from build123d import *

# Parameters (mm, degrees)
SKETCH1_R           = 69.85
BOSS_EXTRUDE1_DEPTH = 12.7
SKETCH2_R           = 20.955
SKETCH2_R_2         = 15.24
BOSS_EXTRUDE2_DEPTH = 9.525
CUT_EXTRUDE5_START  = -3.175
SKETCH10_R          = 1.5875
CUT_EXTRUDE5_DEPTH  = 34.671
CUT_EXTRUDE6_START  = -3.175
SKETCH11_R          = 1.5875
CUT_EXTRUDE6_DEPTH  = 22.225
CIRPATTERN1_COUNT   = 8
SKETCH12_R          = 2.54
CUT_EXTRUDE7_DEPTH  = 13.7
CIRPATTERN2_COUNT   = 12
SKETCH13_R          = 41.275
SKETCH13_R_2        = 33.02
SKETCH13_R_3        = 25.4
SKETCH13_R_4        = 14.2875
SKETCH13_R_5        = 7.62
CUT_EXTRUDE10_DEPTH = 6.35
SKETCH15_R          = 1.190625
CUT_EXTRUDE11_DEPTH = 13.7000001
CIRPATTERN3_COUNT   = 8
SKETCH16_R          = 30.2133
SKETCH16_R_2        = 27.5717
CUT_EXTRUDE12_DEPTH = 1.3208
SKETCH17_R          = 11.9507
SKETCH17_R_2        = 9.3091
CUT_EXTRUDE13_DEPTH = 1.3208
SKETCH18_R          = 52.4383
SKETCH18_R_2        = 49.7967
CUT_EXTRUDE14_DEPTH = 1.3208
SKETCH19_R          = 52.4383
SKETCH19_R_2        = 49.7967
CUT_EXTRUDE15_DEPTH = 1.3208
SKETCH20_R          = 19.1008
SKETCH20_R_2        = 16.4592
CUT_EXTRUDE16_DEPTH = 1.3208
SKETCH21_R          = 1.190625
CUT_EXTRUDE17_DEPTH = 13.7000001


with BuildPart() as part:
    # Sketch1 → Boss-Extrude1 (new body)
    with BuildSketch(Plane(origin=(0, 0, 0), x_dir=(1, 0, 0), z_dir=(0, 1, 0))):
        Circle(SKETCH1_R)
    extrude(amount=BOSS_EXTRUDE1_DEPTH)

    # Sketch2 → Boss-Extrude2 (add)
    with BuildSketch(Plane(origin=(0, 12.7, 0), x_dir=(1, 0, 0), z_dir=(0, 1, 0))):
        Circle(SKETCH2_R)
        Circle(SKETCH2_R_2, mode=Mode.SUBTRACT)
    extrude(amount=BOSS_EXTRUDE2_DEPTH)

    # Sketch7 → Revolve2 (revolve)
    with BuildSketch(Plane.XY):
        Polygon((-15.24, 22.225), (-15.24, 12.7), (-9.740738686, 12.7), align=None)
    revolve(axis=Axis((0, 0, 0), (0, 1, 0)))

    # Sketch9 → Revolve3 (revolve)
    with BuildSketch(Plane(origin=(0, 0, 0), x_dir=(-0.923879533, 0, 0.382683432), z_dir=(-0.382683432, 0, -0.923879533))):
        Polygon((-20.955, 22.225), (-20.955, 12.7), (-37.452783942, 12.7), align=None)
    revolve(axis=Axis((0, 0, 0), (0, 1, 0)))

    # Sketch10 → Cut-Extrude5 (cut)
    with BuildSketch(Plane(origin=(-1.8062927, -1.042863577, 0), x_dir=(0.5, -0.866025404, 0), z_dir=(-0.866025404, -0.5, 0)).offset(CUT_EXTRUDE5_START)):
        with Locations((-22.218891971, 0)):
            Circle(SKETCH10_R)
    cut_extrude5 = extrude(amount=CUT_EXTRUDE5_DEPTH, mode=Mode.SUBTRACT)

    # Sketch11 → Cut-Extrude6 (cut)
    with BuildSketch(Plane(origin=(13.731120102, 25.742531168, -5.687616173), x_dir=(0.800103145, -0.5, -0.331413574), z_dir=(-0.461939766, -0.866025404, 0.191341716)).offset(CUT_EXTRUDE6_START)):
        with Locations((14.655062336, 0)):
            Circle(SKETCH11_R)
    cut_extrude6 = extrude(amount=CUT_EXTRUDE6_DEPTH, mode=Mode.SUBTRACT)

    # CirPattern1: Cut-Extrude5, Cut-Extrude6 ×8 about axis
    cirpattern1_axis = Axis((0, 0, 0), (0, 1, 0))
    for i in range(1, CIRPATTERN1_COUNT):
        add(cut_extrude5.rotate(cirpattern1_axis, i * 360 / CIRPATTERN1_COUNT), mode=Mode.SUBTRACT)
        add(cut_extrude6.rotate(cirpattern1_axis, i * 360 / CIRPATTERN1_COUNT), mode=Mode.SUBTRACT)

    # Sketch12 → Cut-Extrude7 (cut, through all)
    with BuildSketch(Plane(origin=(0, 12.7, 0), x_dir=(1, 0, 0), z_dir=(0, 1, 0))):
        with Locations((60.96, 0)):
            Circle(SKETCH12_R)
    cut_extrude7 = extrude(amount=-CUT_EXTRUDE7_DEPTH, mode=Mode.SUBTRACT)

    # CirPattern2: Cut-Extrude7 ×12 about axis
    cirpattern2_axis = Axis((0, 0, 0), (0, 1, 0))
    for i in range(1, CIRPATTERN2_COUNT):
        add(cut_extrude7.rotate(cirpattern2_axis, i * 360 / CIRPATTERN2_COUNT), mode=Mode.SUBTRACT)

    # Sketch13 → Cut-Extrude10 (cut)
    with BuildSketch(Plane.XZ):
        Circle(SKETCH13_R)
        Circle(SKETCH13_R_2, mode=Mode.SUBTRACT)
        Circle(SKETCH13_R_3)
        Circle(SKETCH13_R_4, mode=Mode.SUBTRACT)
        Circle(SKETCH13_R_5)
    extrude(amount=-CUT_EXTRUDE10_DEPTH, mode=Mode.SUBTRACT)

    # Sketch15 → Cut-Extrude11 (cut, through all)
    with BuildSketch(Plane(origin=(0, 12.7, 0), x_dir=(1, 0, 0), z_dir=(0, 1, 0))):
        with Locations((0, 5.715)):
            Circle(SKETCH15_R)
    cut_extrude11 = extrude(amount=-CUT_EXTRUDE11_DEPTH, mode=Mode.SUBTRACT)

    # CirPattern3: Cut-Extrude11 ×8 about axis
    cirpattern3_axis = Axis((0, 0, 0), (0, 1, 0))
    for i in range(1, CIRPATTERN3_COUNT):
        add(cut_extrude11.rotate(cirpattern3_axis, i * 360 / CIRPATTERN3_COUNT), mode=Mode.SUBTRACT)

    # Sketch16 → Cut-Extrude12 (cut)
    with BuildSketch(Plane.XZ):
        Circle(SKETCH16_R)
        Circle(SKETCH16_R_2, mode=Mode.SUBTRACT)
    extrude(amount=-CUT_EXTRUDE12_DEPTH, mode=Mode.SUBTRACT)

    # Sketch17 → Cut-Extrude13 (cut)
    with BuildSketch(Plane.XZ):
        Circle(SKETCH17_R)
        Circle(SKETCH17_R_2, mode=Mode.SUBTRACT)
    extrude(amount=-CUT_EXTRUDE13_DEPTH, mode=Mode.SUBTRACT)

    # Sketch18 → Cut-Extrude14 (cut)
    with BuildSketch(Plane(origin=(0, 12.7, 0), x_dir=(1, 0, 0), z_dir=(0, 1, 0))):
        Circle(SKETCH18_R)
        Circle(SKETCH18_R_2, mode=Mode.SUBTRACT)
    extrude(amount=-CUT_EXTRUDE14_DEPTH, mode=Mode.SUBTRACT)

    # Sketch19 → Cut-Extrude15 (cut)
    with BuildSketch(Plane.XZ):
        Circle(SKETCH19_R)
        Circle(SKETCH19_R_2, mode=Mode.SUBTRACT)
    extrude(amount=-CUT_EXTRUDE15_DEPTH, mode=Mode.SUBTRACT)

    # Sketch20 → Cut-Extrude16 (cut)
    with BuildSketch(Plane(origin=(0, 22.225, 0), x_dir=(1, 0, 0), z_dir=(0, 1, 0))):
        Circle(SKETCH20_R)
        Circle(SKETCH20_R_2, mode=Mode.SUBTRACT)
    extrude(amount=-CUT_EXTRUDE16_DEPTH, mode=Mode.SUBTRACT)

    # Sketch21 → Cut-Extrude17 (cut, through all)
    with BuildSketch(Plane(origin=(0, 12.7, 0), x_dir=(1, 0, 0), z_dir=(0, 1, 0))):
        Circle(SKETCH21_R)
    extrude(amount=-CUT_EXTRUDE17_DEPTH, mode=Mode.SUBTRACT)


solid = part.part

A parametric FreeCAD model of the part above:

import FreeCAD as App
import Part
import Sketcher

V = App.Vector
Q = App.Units.Quantity

doc = App.newDocument("Part")
params = doc.addObject("Spreadsheet::Sheet", "Params")
for row, (alias, value) in enumerate([
    ("sketch1_diameter", "5.5 in"),
    ("pad1_length", "0.5 in"),
    ("sketch2_diameter", "1.2 in"),
    ("sketch2_diameter2", "1.65 in"),
    ("pad2_length", "0.375 in"),
    ("sketch3_height", "0.375 in"),
    ("revolution_angle", "360 deg"),
    ("sketch4_length", "0.75 in"),
    ("revolution2_angle", "360 deg"),
    ("sketch5_diameter", "0.125 in"),
    ("pocket1_length", "1.365 in"),
    ("sketch6_diameter", "0.125 in"),
    ("pocket2_length", "0.875 in"),
    ("sketch7_diameter", "0.2 in"),
    ("sketch8_diameter", "2 in"),
    ("sketch8_diameter2", "2.6 in"),
    ("sketch8_diameter3", "0.6 in"),
    ("sketch8_diameter4", "3.25 in"),
    ("sketch8_diameter5", "1.125 in"),
    ("pocket4_length", "0.25 in"),
    ("sketch9_diameter", "0.09375 in"),
    ("sketch10_diameter", "2.379 in"),
    ("sketch10_diameter2", "2.171 in"),
    ("pocket6_length", "0.052 in"),
    ("sketch11_diameter", "0.941 in"),
    ("sketch11_diameter2", "0.733 in"),
    ("pocket7_length", "0.052 in"),
    ("sketch12_diameter", "4.129 in"),
    ("sketch12_diameter2", "3.921 in"),
    ("pocket8_length", "0.052 in"),
    ("sketch13_diameter", "4.129 in"),
    ("sketch13_diameter2", "3.921 in"),
    ("pocket9_length", "0.052 in"),
    ("sketch14_diameter", "1.504 in"),
    ("sketch14_diameter2", "1.296 in"),
    ("pocket10_length", "0.052 in"),
    ("sketch15_diameter", "0.09375 in"),
], start=1):
    params.set(f"A{row}", alias)
    params.set(f"B{row}", "=" + value)
    params.setAlias(f"B{row}", alias)

body = doc.addObject("PartDesign::Body", "Body")

# Sketch on XZ plane
sketch1 = body.newObject("Sketcher::SketchObject", "Sketch")
sketch1.AttachmentSupport = (doc.getObject("XZ_Plane"), [""])
sketch1.MapMode = "FlatFace"
sketch1.addGeometry(Part.Circle(V(0, 0, 0), V(0, 0, 1), 70), False)
sketch1.addConstraint([
    Sketcher.Constraint("Coincident", 0, 3, -1, 1),
    Sketcher.Constraint("Diameter", 0, Q("5.5 in")),
])
sketch1.setExpression("Constraints[1]", "Params.sketch1_diameter")
pad1 = body.newObject("PartDesign::Pad", "Pad")
pad1.Profile = sketch1
pad1.setExpression("Length", "Params.pad1_length")
pad1.Reversed = True

# Sketch on XZ plane
sketch2 = body.newObject("Sketcher::SketchObject", "Sketch001")
sketch2.AttachmentSupport = (doc.getObject("XZ_Plane"), [""])
sketch2.MapMode = "FlatFace"
sketch2.AttachmentOffset = App.Placement(V(0, 0, -0.5 * 25.4), App.Rotation())
sketch2.addGeometry([
    Part.Circle(V(0, 0, 0), V(0, 0, 1), 21),
    Part.Circle(V(0, 0, 0), V(0, 0, 1), 15),
], False)
sketch2.addConstraint([
    Sketcher.Constraint("Coincident", 0, 3, -1, 1),
    Sketcher.Constraint("Coincident", 1, 3, -1, 1),
    Sketcher.Constraint("Diameter", 1, Q("1.2 in")),
    Sketcher.Constraint("Diameter", 0, Q("1.65 in")),
])
sketch2.setExpression("Constraints[2]", "Params.sketch2_diameter")
sketch2.setExpression("Constraints[3]", "Params.sketch2_diameter2")
pad2 = body.newObject("PartDesign::Pad", "Pad001")
pad2.Profile = sketch2
pad2.setExpression("Length", "Params.pad2_length")
pad2.Reversed = True

# Sketch on XY plane
sketch3 = body.newObject("Sketcher::SketchObject", "Sketch002")
sketch3.AttachmentSupport = (doc.getObject("XY_Plane"), [""])
sketch3.MapMode = "FlatFace"
sketch3.addGeometry([
    Part.LineSegment(V(-15, 22, 0), V(-15, 13, 0)),
    Part.LineSegment(V(-15, 13, 0), V(-10, 13, 0)),
    Part.LineSegment(V(-10, 13, 0), V(-15, 22, 0)),
], False)
sketch3.addConstraint([
    Sketcher.Constraint("Coincident", 0, 2, 1, 1),
    Sketcher.Constraint("Coincident", 1, 2, 2, 1),
    Sketcher.Constraint("Coincident", 2, 2, 0, 1),
    Sketcher.Constraint("Vertical", 0),
    Sketcher.Constraint("Horizontal", 1),
    Sketcher.Constraint("Angle", 2, Q("120 deg")),
    Sketcher.Constraint("DistanceX", 0, 2, -1, 1, Q("0.6 in")),
    Sketcher.Constraint("DistanceY", -1, 1, 0, 2, Q("0.5 in")),
    Sketcher.Constraint("DistanceY", 0, 2, 0, 1, Q("0.375 in")),
])
sketch3.setExpression("Constraints[8]", "Params.sketch3_height")
revolution = body.newObject("PartDesign::Revolution", "Revolution")
revolution.Profile = sketch3
revolution.ReferenceAxis = (sketch3, ["V_Axis"])
revolution.setExpression("Angle", "Params.revolution_angle")

# Sketch on an angled plane
sketch4 = body.newObject("Sketcher::SketchObject", "Sketch003")
sketch4.Placement = App.Placement(V(0, 0, 0), App.Rotation(V(-0.923879533, 0, 0.382683432), V(0, 1.000000001, 0), V(-0.382683432, 0, -0.923879533), "ZXY"))
sketch4.addGeometry([
    Part.LineSegment(V(-21, 13, 0), V(-21, 22, 0)),
    Part.LineSegment(V(-21, 22, 0), V(-37, 13, 0)),
    Part.LineSegment(V(-37, 13, 0), V(-21, 13, 0)),
], False)
sketch4.addConstraint([
    Sketcher.Constraint("Coincident", 0, 2, 1, 1),
    Sketcher.Constraint("Coincident", 1, 2, 2, 1),
    Sketcher.Constraint("Coincident", 2, 2, 0, 1),
    Sketcher.Constraint("Vertical", 0),
    Sketcher.Constraint("Horizontal", 2),
    Sketcher.Constraint("Angle", 1, Q("-150 deg")),
    Sketcher.Constraint("DistanceY", -1, 1, 1, 2, Q("0.5 in")),
    Sketcher.Constraint("Distance", 1, Q("0.75 in")),
    Sketcher.Constraint("DistanceX", 0, 2, -1, 1, Q("0.825 in")),
])
sketch4.setExpression("Constraints[7]", "Params.sketch4_length")
revolution2 = body.newObject("PartDesign::Revolution", "Revolution001")
revolution2.Profile = sketch4
revolution2.ReferenceAxis = (sketch4, ["V_Axis"])
revolution2.setExpression("Angle", "Params.revolution2_angle")

# Sketch on an angled plane
sketch5 = body.newObject("Sketcher::SketchObject", "Sketch004")
sketch5.Placement = App.Placement(V(0.943338, 0.544636, 0), App.Rotation(V(0.5, -0.866025404, 0), V(0, 0, 1), V(-0.866025404, -0.5, 0), "ZXY"))
sketch5.addGeometry(Part.Circle(V(-22.2, 0, 0), V(0, 0, 1), 1.6), False)
sketch5.addConstraint([
    Sketcher.Constraint("PointOnObject", 0, 3, -1),
    Sketcher.Constraint("Diameter", 0, Q("0.125 in")),
    Sketcher.Constraint("DistanceX", 0, 3, -1, 1, Q("22.218892 mm")),
])
sketch5.setExpression("Constraints[1]", "Params.sketch5_diameter")
pocket1 = body.newObject("PartDesign::Pocket", "Pocket")
pocket1.Profile = sketch5
pocket1.setExpression("Length", "Params.pocket1_length")
pocket1.Reversed = True

# Sketch on an angled plane
sketch6 = body.newObject("Sketcher::SketchObject", "Sketch005")
sketch6.Placement = App.Placement(V(15.197779, 28.492162, -6.295126), App.Rotation(V(0.800103145, -0.5, -0.331413574), V(0.382683432, 0, 0.923879532), V(-0.461939766, -0.866025404, 0.191341716), "ZXY"))
sketch6.addGeometry(Part.Circle(V(14.7, 0, 0), V(0, 0, 1), 1.6), False)
sketch6.addConstraint([
    Sketcher.Constraint("PointOnObject", 0, 3, -1),
    Sketcher.Constraint("Diameter", 0, Q("0.125 in")),
    Sketcher.Constraint("DistanceX", -1, 1, 0, 3, Q("14.655062 mm")),
])
sketch6.setExpression("Constraints[1]", "Params.sketch6_diameter")
pocket2 = body.newObject("PartDesign::Pocket", "Pocket001")
pocket2.Profile = sketch6
pocket2.setExpression("Length", "Params.pocket2_length")
pocket2.Reversed = True
doc.recompute()

polarpattern = body.newObject("PartDesign::PolarPattern", "PolarPattern")
polarpattern.Originals = [pocket1, pocket2]
polarpattern.Axis = (doc.getObject("Y_Axis"), [""])
polarpattern.Angle = 360
polarpattern.Occurrences = 8
body.Tip = polarpattern

# Sketch on XZ plane
sketch7 = body.newObject("Sketcher::SketchObject", "Sketch006")
sketch7.AttachmentSupport = (doc.getObject("XZ_Plane"), [""])
sketch7.MapMode = "FlatFace"
sketch7.AttachmentOffset = App.Placement(V(0, 0, -0.5 * 25.4), App.Rotation())
sketch7.addGeometry(Part.Circle(V(61, 0, 0), V(0, 0, 1), 2.5), False)
sketch7.addConstraint([
    Sketcher.Constraint("PointOnObject", 0, 3, -1),
    Sketcher.Constraint("Diameter", 0, Q("0.2 in")),
    Sketcher.Constraint("DistanceX", -1, 1, 0, 3, Q("2.4 in")),
])
sketch7.setExpression("Constraints[1]", "Params.sketch7_diameter")
pocket3 = body.newObject("PartDesign::Pocket", "Pocket002")
pocket3.Profile = sketch7
pocket3.Type = "ThroughAll"
pocket3.Reversed = True
doc.recompute()

polarpattern2 = body.newObject("PartDesign::PolarPattern", "PolarPattern001")
polarpattern2.Originals = [pocket3]
polarpattern2.Axis = (doc.getObject("Y_Axis"), [""])
polarpattern2.Angle = 360
polarpattern2.Occurrences = 12
body.Tip = polarpattern2

# Sketch on XZ plane
sketch8 = body.newObject("Sketcher::SketchObject", "Sketch007")
sketch8.AttachmentSupport = (doc.getObject("XZ_Plane"), [""])
sketch8.MapMode = "FlatFace"
sketch8.addGeometry([
    Part.Circle(V(0, 0, 0), V(0, 0, 1), 41),  # 0
    Part.Circle(V(0, 0, 0), V(0, 0, 1), 33),  # 1
    Part.Circle(V(0, 0, 0), V(0, 0, 1), 25),  # 2
    Part.Circle(V(0, 0, 0), V(0, 0, 1), 14),  # 3
    Part.Circle(V(0, 0, 0), V(0, 0, 1), 8),  # 4
], False)
sketch8.addConstraint([
    Sketcher.Constraint("Coincident", 0, 3, -1, 1),
    Sketcher.Constraint("Coincident", 1, 3, -1, 1),
    Sketcher.Constraint("Coincident", 2, 3, -1, 1),
    Sketcher.Constraint("Coincident", 3, 3, -1, 1),
    Sketcher.Constraint("Coincident", 4, 3, -1, 1),
    Sketcher.Constraint("Diameter", 2, Q("2 in")),
    Sketcher.Constraint("Diameter", 1, Q("2.6 in")),
    Sketcher.Constraint("Diameter", 4, Q("0.6 in")),
    Sketcher.Constraint("Diameter", 0, Q("3.25 in")),
    Sketcher.Constraint("Diameter", 3, Q("1.125 in")),
])
sketch8.setExpression("Constraints[5]", "Params.sketch8_diameter")
sketch8.setExpression("Constraints[6]", "Params.sketch8_diameter2")
sketch8.setExpression("Constraints[7]", "Params.sketch8_diameter3")
sketch8.setExpression("Constraints[8]", "Params.sketch8_diameter4")
sketch8.setExpression("Constraints[9]", "Params.sketch8_diameter5")
pocket4 = body.newObject("PartDesign::Pocket", "Pocket003")
pocket4.Profile = sketch8
pocket4.setExpression("Length", "Params.pocket4_length")

# Sketch on XZ plane
sketch9 = body.newObject("Sketcher::SketchObject", "Sketch008")
sketch9.AttachmentSupport = (doc.getObject("XZ_Plane"), [""])
sketch9.MapMode = "FlatFace"
sketch9.AttachmentOffset = App.Placement(V(0, 0, -0.5 * 25.4), App.Rotation())
sketch9.addGeometry(Part.Circle(V(0, -5.7, 0), V(0, 0, 1), 1.2), False)
sketch9.addConstraint([
    Sketcher.Constraint("PointOnObject", 0, 3, -2),
    Sketcher.Constraint("Diameter", 0, Q("0.09375 in")),
    Sketcher.Constraint("DistanceY", 0, 3, -1, 1, Q("0.225 in")),
])
sketch9.setExpression("Constraints[1]", "Params.sketch9_diameter")
pocket5 = body.newObject("PartDesign::Pocket", "Pocket004")
pocket5.Profile = sketch9
pocket5.Type = "ThroughAll"
pocket5.Reversed = True
doc.recompute()

polarpattern3 = body.newObject("PartDesign::PolarPattern", "PolarPattern002")
polarpattern3.Originals = [pocket5]
polarpattern3.Axis = (doc.getObject("Y_Axis"), [""])
polarpattern3.Angle = 360
polarpattern3.Occurrences = 8
body.Tip = polarpattern3

# Sketch on XZ plane
sketch10 = body.newObject("Sketcher::SketchObject", "Sketch009")
sketch10.AttachmentSupport = (doc.getObject("XZ_Plane"), [""])
sketch10.MapMode = "FlatFace"
sketch10.addGeometry([
    Part.Circle(V(0, 0, 0), V(0, 0, 1), 30),
    Part.Circle(V(0, 0, 0), V(0, 0, 1), 28),
], False)
sketch10.addConstraint([
    Sketcher.Constraint("Coincident", 0, 3, -1, 1),
    Sketcher.Constraint("Coincident", 1, 3, -1, 1),
    Sketcher.Constraint("Diameter", 0, Q("2.379 in")),
    Sketcher.Constraint("Diameter", 1, Q("2.171 in")),
])
sketch10.setExpression("Constraints[2]", "Params.sketch10_diameter")
sketch10.setExpression("Constraints[3]", "Params.sketch10_diameter2")
pocket6 = body.newObject("PartDesign::Pocket", "Pocket005")
pocket6.Profile = sketch10
pocket6.setExpression("Length", "Params.pocket6_length")

# Sketch on XZ plane
sketch11 = body.newObject("Sketcher::SketchObject", "Sketch010")
sketch11.AttachmentSupport = (doc.getObject("XZ_Plane"), [""])
sketch11.MapMode = "FlatFace"
sketch11.addGeometry([
    Part.Circle(V(0, 0, 0), V(0, 0, 1), 12),
    Part.Circle(V(0, 0, 0), V(0, 0, 1), 9),
], False)
sketch11.addConstraint([
    Sketcher.Constraint("Coincident", 0, 3, -1, 1),
    Sketcher.Constraint("Coincident", 1, 3, -1, 1),
    Sketcher.Constraint("Diameter", 0, Q("0.941 in")),
    Sketcher.Constraint("Diameter", 1, Q("0.733 in")),
])
sketch11.setExpression("Constraints[2]", "Params.sketch11_diameter")
sketch11.setExpression("Constraints[3]", "Params.sketch11_diameter2")
pocket7 = body.newObject("PartDesign::Pocket", "Pocket006")
pocket7.Profile = sketch11
pocket7.setExpression("Length", "Params.pocket7_length")

# Sketch on XZ plane
sketch12 = body.newObject("Sketcher::SketchObject", "Sketch011")
sketch12.AttachmentSupport = (doc.getObject("XZ_Plane"), [""])
sketch12.MapMode = "FlatFace"
sketch12.AttachmentOffset = App.Placement(V(0, 0, -0.5 * 25.4), App.Rotation())
sketch12.addGeometry([
    Part.Circle(V(0, 0, 0), V(0, 0, 1), 52),
    Part.Circle(V(0, 0, 0), V(0, 0, 1), 50),
], False)
sketch12.addConstraint([
    Sketcher.Constraint("Coincident", 0, 3, -1, 1),
    Sketcher.Constraint("Coincident", 1, 3, -1, 1),
    Sketcher.Constraint("Diameter", 0, Q("4.129 in")),
    Sketcher.Constraint("Diameter", 1, Q("3.921 in")),
])
sketch12.setExpression("Constraints[2]", "Params.sketch12_diameter")
sketch12.setExpression("Constraints[3]", "Params.sketch12_diameter2")
pocket8 = body.newObject("PartDesign::Pocket", "Pocket007")
pocket8.Profile = sketch12
pocket8.setExpression("Length", "Params.pocket8_length")
pocket8.Reversed = True

# Sketch on XZ plane
sketch13 = body.newObject("Sketcher::SketchObject", "Sketch012")
sketch13.AttachmentSupport = (doc.getObject("XZ_Plane"), [""])
sketch13.MapMode = "FlatFace"
sketch13.addGeometry([
    Part.Circle(V(0, 0, 0), V(0, 0, 1), 52),
    Part.Circle(V(0, 0, 0), V(0, 0, 1), 50),
], False)
sketch13.addConstraint([
    Sketcher.Constraint("Coincident", 0, 3, -1, 1),
    Sketcher.Constraint("Coincident", 1, 3, -1, 1),
    Sketcher.Constraint("Diameter", 0, Q("4.129 in")),
    Sketcher.Constraint("Diameter", 1, Q("3.921 in")),
])
sketch13.setExpression("Constraints[2]", "Params.sketch13_diameter")
sketch13.setExpression("Constraints[3]", "Params.sketch13_diameter2")
pocket9 = body.newObject("PartDesign::Pocket", "Pocket008")
pocket9.Profile = sketch13
pocket9.setExpression("Length", "Params.pocket9_length")

# Sketch on XZ plane
sketch14 = body.newObject("Sketcher::SketchObject", "Sketch013")
sketch14.AttachmentSupport = (doc.getObject("XZ_Plane"), [""])
sketch14.MapMode = "FlatFace"
sketch14.AttachmentOffset = App.Placement(V(0, 0, -0.875 * 25.4), App.Rotation())
sketch14.addGeometry([
    Part.Circle(V(0, 0, 0), V(0, 0, 1), 19),
    Part.Circle(V(0, 0, 0), V(0, 0, 1), 16),
], False)
sketch14.addConstraint([
    Sketcher.Constraint("Coincident", 0, 3, -1, 1),
    Sketcher.Constraint("Coincident", 1, 3, -1, 1),
    Sketcher.Constraint("Diameter", 0, Q("1.504 in")),
    Sketcher.Constraint("Diameter", 1, Q("1.296 in")),
])
sketch14.setExpression("Constraints[2]", "Params.sketch14_diameter")
sketch14.setExpression("Constraints[3]", "Params.sketch14_diameter2")
pocket10 = body.newObject("PartDesign::Pocket", "Pocket009")
pocket10.Profile = sketch14
pocket10.setExpression("Length", "Params.pocket10_length")
pocket10.Reversed = True

# Sketch on XZ plane
sketch15 = body.newObject("Sketcher::SketchObject", "Sketch014")
sketch15.AttachmentSupport = (doc.getObject("XZ_Plane"), [""])
sketch15.MapMode = "FlatFace"
sketch15.AttachmentOffset = App.Placement(V(0, 0, -0.5 * 25.4), App.Rotation())
sketch15.addGeometry(Part.Circle(V(0, 0, 0), V(0, 0, 1), 1.2), False)
sketch15.addConstraint([
    Sketcher.Constraint("Coincident", 0, 3, -1, 1),
    Sketcher.Constraint("Diameter", 0, Q("0.09375 in")),
])
sketch15.setExpression("Constraints[1]", "Params.sketch15_diameter")
pocket11 = body.newObject("PartDesign::Pocket", "Pocket010")
pocket11.Profile = sketch15
pocket11.Type = "ThroughAll"
pocket11.Reversed = True

doc.recompute()
